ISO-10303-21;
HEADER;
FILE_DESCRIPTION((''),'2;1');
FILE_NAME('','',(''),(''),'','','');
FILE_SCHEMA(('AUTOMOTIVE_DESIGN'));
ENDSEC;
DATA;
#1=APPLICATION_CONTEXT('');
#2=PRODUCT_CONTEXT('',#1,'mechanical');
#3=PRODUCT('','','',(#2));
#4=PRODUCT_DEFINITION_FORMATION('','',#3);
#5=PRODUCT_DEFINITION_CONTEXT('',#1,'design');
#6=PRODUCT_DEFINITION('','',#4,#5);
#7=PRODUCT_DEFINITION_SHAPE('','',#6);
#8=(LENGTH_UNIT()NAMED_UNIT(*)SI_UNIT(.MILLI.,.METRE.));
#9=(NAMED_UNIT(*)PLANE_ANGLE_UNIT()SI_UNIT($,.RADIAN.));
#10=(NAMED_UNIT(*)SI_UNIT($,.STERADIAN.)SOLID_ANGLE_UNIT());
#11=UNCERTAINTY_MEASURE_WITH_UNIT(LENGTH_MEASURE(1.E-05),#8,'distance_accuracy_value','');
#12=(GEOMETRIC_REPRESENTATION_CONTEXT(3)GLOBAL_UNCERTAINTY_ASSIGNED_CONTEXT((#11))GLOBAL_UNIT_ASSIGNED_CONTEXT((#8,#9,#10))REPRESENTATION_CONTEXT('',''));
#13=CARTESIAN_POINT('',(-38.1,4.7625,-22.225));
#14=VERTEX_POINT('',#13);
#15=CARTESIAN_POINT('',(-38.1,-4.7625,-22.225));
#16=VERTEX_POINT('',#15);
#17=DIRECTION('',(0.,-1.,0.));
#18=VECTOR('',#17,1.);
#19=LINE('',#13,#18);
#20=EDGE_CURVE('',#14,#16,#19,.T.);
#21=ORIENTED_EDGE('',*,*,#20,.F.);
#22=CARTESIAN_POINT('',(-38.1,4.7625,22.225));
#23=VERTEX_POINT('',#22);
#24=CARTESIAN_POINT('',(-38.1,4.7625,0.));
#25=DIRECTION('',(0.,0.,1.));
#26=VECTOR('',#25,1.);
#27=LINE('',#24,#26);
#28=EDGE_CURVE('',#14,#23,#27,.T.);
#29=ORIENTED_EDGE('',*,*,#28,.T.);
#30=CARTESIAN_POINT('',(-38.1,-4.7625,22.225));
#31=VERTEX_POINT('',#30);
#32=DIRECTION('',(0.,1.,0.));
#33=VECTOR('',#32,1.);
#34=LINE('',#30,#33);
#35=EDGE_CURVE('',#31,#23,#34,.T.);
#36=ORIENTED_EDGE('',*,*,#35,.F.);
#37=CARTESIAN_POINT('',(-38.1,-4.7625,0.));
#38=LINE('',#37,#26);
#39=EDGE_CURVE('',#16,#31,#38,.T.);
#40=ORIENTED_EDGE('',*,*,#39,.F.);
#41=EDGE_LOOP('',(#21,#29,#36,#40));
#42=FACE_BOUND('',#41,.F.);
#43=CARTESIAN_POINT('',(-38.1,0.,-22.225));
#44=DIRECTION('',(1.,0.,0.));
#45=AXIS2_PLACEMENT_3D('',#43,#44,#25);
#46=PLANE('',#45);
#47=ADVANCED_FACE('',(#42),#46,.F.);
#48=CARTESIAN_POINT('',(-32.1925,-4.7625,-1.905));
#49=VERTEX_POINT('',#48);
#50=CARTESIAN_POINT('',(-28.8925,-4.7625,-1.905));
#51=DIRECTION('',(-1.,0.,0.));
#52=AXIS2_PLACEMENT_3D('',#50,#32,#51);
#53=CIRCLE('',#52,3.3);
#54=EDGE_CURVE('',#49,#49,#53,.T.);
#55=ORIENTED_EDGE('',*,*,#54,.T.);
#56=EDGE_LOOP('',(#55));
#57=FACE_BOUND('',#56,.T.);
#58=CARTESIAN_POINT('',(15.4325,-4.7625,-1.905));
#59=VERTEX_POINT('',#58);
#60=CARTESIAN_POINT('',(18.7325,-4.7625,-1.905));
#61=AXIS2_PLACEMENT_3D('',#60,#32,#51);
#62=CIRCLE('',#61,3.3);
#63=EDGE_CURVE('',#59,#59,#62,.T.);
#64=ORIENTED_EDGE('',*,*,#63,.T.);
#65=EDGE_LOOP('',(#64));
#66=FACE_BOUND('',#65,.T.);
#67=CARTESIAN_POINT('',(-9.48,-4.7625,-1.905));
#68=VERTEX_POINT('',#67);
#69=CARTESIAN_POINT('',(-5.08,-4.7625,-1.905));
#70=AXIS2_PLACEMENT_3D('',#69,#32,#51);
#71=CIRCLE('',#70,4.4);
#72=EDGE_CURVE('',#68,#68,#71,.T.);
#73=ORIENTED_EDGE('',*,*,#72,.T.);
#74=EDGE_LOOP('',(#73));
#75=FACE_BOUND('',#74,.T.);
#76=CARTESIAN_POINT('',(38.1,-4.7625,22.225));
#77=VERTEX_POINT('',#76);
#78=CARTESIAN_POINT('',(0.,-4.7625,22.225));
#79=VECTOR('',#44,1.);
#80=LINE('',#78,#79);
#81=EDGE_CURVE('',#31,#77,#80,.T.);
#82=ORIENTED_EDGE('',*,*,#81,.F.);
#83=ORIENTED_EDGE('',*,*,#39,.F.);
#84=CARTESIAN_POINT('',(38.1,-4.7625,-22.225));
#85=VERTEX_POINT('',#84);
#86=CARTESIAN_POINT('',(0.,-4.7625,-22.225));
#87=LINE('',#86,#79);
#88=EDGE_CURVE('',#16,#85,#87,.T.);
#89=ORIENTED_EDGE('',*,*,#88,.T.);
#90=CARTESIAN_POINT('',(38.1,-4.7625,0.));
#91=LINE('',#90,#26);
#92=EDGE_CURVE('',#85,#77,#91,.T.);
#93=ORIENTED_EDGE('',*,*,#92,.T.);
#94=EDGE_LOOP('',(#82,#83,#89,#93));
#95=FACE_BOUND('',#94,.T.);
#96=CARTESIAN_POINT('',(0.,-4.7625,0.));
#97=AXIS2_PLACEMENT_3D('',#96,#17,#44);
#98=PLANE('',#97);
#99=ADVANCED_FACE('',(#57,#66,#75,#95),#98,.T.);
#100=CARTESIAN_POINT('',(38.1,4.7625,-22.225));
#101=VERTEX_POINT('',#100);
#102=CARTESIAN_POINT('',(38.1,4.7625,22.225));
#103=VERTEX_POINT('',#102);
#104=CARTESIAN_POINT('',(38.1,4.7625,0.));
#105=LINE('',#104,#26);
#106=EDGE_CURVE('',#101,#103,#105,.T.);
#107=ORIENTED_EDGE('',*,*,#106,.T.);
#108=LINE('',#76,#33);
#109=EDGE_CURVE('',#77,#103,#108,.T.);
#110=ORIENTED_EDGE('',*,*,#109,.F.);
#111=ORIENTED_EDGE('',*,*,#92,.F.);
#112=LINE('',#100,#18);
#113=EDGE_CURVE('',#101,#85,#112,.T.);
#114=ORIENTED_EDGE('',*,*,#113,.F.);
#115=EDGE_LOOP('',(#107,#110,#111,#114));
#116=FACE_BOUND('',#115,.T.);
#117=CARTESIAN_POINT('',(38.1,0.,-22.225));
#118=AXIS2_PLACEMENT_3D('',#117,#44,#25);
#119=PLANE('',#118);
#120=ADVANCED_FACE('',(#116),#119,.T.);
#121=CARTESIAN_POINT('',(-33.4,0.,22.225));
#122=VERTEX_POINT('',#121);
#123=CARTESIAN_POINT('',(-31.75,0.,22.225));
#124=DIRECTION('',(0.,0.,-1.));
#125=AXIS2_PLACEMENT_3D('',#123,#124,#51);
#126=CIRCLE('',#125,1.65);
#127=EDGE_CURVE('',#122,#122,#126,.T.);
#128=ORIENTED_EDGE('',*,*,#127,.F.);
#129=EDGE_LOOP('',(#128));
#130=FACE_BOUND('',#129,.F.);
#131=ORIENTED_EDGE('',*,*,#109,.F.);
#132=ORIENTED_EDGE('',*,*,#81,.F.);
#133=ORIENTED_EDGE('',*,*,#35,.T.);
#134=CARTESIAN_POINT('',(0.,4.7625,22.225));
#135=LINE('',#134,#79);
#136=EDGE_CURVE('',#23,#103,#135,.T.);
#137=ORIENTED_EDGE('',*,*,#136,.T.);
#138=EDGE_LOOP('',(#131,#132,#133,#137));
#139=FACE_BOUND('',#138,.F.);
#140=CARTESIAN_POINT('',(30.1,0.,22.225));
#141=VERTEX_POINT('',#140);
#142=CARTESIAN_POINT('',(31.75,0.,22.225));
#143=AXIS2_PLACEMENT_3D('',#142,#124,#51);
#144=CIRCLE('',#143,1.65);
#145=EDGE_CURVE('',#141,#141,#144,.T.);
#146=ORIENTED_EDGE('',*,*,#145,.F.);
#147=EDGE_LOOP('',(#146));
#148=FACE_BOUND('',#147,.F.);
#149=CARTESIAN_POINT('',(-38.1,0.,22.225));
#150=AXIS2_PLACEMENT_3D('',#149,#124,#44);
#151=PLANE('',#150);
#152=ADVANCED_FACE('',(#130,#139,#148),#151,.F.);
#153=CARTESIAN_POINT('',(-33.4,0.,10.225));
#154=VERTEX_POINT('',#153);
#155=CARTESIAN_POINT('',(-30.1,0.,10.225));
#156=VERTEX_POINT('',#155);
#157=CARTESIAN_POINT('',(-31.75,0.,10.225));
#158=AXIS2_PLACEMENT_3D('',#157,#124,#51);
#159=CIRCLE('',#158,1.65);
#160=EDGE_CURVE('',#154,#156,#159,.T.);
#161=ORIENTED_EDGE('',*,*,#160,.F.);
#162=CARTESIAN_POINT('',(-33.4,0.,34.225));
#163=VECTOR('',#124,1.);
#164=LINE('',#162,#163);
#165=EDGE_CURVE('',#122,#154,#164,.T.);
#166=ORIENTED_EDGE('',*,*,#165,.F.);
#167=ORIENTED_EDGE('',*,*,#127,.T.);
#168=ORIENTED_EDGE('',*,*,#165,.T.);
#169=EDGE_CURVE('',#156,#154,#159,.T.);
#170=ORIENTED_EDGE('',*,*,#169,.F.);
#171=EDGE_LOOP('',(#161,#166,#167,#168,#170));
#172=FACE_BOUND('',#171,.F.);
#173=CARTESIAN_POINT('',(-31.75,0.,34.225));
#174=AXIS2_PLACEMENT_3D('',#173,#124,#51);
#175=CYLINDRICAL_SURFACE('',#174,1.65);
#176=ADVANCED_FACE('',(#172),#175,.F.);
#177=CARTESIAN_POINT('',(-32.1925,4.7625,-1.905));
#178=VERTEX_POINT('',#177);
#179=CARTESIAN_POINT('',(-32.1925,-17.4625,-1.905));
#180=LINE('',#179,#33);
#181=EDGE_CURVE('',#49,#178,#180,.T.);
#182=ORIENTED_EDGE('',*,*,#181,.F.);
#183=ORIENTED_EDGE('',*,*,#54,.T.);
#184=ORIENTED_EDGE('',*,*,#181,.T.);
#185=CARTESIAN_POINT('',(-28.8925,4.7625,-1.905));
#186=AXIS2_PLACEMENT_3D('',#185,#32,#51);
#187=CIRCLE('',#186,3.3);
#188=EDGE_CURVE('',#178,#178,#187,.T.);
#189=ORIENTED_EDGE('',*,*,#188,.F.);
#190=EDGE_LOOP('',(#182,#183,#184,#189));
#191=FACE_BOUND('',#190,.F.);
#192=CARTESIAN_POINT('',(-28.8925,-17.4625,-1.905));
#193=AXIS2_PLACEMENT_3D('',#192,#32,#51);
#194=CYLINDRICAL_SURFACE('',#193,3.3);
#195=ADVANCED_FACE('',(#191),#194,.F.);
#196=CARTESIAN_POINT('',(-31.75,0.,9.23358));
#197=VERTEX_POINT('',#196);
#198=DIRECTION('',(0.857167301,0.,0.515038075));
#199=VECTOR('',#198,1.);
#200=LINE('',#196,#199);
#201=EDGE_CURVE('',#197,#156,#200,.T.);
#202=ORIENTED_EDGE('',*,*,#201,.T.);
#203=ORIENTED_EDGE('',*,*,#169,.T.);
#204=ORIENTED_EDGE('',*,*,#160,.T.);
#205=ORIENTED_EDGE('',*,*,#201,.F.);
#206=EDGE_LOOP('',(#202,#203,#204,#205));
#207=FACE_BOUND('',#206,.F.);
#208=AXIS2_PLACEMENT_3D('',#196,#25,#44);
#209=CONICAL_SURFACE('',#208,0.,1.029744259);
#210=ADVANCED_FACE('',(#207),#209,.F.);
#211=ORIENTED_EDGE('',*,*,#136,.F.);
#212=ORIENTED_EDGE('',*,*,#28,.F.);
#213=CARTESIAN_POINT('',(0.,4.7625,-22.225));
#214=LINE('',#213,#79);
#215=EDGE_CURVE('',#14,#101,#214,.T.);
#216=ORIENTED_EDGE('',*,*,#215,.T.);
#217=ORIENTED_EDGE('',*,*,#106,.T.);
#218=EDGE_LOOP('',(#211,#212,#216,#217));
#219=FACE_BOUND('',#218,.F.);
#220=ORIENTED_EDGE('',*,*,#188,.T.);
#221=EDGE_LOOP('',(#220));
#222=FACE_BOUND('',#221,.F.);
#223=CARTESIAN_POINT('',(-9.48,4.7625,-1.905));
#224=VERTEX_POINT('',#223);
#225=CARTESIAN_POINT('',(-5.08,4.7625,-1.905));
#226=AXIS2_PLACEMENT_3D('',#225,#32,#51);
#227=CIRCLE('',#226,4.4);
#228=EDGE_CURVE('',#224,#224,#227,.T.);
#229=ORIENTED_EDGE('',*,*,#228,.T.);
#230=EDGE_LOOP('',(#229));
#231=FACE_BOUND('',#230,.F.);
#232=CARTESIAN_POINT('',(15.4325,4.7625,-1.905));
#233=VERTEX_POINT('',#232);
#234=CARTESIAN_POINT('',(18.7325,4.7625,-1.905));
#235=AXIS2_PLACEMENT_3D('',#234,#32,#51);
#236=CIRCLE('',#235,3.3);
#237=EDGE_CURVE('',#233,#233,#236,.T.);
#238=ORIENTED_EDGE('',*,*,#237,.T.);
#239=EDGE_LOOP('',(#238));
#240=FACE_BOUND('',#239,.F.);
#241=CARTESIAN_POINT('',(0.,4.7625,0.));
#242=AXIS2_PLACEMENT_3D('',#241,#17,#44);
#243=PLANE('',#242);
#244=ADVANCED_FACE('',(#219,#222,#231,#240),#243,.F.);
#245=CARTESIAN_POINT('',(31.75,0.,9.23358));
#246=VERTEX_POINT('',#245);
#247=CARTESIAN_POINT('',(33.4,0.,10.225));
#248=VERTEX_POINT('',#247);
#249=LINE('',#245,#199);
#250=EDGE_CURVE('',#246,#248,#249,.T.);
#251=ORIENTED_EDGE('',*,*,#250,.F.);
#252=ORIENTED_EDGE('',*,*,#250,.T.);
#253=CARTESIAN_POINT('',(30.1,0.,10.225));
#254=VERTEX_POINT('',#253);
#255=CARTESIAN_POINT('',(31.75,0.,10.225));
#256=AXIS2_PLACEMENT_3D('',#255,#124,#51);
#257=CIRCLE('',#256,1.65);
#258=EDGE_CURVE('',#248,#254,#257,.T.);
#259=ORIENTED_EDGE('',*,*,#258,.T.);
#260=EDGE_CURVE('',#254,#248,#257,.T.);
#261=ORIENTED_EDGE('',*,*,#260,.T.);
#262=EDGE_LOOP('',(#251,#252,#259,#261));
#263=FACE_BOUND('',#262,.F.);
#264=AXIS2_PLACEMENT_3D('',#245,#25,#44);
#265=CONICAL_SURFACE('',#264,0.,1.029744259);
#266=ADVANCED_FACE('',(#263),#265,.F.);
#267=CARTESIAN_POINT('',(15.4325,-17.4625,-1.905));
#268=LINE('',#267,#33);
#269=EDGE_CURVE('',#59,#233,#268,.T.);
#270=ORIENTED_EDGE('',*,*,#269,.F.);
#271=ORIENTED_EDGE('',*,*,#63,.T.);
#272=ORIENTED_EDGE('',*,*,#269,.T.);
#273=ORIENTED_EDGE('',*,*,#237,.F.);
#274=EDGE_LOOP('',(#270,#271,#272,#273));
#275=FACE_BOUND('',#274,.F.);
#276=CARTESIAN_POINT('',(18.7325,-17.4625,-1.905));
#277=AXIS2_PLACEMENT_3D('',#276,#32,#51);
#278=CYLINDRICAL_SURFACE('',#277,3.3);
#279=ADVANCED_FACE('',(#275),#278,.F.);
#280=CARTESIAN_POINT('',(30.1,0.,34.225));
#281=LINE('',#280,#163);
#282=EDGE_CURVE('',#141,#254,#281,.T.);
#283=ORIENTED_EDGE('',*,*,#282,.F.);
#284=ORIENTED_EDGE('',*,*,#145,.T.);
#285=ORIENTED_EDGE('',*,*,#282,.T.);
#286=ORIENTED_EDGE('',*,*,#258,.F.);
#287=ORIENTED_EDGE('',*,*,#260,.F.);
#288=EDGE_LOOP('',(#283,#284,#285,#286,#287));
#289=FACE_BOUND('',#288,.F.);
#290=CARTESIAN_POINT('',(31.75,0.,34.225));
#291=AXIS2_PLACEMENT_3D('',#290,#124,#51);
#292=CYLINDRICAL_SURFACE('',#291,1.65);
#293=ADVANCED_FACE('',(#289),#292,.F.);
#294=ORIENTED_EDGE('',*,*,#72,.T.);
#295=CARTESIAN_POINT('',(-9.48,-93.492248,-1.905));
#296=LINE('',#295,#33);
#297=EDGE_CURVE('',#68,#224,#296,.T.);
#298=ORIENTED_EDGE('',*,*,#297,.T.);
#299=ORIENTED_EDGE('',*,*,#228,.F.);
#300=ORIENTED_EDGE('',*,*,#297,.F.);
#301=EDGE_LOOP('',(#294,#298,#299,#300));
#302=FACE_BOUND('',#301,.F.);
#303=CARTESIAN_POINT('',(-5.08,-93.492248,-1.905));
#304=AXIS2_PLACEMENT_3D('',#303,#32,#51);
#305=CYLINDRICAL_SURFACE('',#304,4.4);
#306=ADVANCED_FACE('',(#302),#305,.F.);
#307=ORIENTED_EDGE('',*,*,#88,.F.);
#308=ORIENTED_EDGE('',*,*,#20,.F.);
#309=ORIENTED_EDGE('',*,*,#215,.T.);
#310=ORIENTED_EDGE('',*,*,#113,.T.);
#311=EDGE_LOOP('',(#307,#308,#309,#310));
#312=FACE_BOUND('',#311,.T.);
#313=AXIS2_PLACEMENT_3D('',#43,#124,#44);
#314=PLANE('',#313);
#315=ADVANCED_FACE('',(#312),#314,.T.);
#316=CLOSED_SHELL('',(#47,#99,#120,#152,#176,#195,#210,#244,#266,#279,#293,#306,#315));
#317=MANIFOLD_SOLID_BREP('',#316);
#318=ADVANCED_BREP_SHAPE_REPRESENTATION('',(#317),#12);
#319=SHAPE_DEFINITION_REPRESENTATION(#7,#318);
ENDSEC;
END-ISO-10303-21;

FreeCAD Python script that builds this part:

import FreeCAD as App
import Part
import Sketcher


def add_polygon(sketch, points):
    """Adds a closed chain of lines whose ends are joined by coincident constraints."""
    first, n = sketch.GeometryCount, len(points)
    for a, b in zip(points, points[1:] + points[:1]):
        sketch.addGeometry(Part.LineSegment(App.Vector(*a, 0), App.Vector(*b, 0)), False)
    for i in range(n):
        sketch.addConstraint(Sketcher.Constraint("Coincident", first + i, 2, first + (i + 1) % n, 1))

doc = App.newDocument("Part")
body = doc.addObject("PartDesign::Body", "Body")

# Sketch on XZ plane
sketch1 = body.newObject("Sketcher::SketchObject", "Sketch")
sketch1.AttachmentSupport = (doc.getObject("XZ_Plane"), [""])
sketch1.MapMode = "FlatFace"
add_polygon(sketch1, [(-38.1, 22.225), (-38.1, -22.225), (38.1, -22.225), (38.1, 22.225)])  # lines 0-3
sketch1.addConstraint([
    Sketcher.Constraint("Vertical", 0),
    Sketcher.Constraint("Horizontal", 1),
    Sketcher.Constraint("Vertical", 2),
    Sketcher.Constraint("Horizontal", 3),
    Sketcher.Constraint("Symmetric", 0, 2, 2, 2, -1, 1),
    Sketcher.Constraint("DistanceX", 1, 1, 1, 2, 76.2),
    Sketcher.Constraint("DistanceY", 0, 2, 0, 1, 44.45),
])
pad1 = body.newObject("PartDesign::Pad", "Pad")
pad1.Profile = sketch1
pad1.Length = 9.525
pad1.Midplane = True

# Sketch on XY plane
sketch2 = body.newObject("Sketcher::SketchObject", "Sketch001")
sketch2.AttachmentSupport = (doc.getObject("XY_Plane"), [""])
sketch2.MapMode = "FlatFace"
sketch2.AttachmentOffset = App.Placement(App.Vector(0, 0, 22.225), App.Rotation())
sketch2.addGeometry([
    Part.Circle(App.Vector(-31.75, 0, 0), App.Vector(0, 0, 1), 1.65),
    Part.Circle(App.Vector(31.75, 0, 0), App.Vector(0, 0, 1), 1.65),
], False)
sketch2.addConstraint([
    Sketcher.Constraint("Equal", 0, 1),
    Sketcher.Constraint("Symmetric", 0, 3, 1, 3, -1, 1),
    Sketcher.Constraint("PointOnObject", 0, 3, -1),
    Sketcher.Constraint("Diameter", 0, 3.3),
    Sketcher.Constraint("DistanceX", 0, 3, 1, 3, 63.5),
])
doc.recompute()
hole = body.newObject("PartDesign::Hole", "Hole")
hole.Profile = sketch2
hole.ThreadType = "None"
hole.Diameter = 3.3
hole.DepthType = "Dimension"
hole.Depth = 12
hole.DrillPoint = "Angled"
hole.DrillPointAngle = 118

# Sketch on XZ plane
sketch3 = body.newObject("Sketcher::SketchObject", "Sketch002")
sketch3.AttachmentSupport = (doc.getObject("XZ_Plane"), [""])
sketch3.MapMode = "FlatFace"
sketch3.AttachmentOffset = App.Placement(App.Vector(0, 0, 4.7625), App.Rotation())
sketch3.addGeometry([
    Part.Circle(App.Vector(-28.8925, -1.905, 0), App.Vector(0, 0, 1), 3.3),
    Part.Circle(App.Vector(18.7325, -1.905, 0), App.Vector(0, 0, 1), 3.3),
], False)
sketch3.addConstraint([
    Sketcher.Constraint("Equal", 0, 1),
    Sketcher.Constraint("Horizontal", 0, 3, 1, 3),
    Sketcher.Constraint("Diameter", 0, 6.6),
    Sketcher.Constraint("DistanceY", 0, 3, -1, 1, 1.905),
    Sketcher.Constraint("DistanceX", 0, 3, 1, 3, 47.625),
    Sketcher.Constraint("DistanceX", 0, 3, -1, 1, 28.8925),
])
doc.recompute()
hole2 = body.newObject("PartDesign::Hole", "Hole001")
hole2.Profile = sketch3
hole2.ThreadType = "None"
hole2.Diameter = 6.6
hole2.DepthType = "Dimension"
hole2.Depth = 12.7
hole2.DrillPoint = "Angled"
hole2.DrillPointAngle = 118

# Sketch on XZ plane
sketch4 = body.newObject("Sketcher::SketchObject", "Sketch003")
sketch4.AttachmentSupport = (doc.getObject("XZ_Plane"), [""])
sketch4.MapMode = "FlatFace"
sketch4.AttachmentOffset = App.Placement(App.Vector(0, 0, 4.7625), App.Rotation())
sketch4.addGeometry(Part.Circle(App.Vector(-5.08, -1.905, 0), App.Vector(0, 0, 1), 4.4), False)
sketch4.addConstraint([
    Sketcher.Constraint("Diameter", 0, 8.8),
    Sketcher.Constraint("DistanceX", 0, 3, -1, 1, 5.08),
    Sketcher.Constraint("DistanceY", 0, 3, -1, 1, 1.905),
])
doc.recompute()
hole3 = body.newObject("PartDesign::Hole", "Hole002")
hole3.Profile = sketch4
hole3.ThreadType = "None"
hole3.Diameter = 8.8
hole3.DepthType = "ThroughAll"

doc.recompute()
